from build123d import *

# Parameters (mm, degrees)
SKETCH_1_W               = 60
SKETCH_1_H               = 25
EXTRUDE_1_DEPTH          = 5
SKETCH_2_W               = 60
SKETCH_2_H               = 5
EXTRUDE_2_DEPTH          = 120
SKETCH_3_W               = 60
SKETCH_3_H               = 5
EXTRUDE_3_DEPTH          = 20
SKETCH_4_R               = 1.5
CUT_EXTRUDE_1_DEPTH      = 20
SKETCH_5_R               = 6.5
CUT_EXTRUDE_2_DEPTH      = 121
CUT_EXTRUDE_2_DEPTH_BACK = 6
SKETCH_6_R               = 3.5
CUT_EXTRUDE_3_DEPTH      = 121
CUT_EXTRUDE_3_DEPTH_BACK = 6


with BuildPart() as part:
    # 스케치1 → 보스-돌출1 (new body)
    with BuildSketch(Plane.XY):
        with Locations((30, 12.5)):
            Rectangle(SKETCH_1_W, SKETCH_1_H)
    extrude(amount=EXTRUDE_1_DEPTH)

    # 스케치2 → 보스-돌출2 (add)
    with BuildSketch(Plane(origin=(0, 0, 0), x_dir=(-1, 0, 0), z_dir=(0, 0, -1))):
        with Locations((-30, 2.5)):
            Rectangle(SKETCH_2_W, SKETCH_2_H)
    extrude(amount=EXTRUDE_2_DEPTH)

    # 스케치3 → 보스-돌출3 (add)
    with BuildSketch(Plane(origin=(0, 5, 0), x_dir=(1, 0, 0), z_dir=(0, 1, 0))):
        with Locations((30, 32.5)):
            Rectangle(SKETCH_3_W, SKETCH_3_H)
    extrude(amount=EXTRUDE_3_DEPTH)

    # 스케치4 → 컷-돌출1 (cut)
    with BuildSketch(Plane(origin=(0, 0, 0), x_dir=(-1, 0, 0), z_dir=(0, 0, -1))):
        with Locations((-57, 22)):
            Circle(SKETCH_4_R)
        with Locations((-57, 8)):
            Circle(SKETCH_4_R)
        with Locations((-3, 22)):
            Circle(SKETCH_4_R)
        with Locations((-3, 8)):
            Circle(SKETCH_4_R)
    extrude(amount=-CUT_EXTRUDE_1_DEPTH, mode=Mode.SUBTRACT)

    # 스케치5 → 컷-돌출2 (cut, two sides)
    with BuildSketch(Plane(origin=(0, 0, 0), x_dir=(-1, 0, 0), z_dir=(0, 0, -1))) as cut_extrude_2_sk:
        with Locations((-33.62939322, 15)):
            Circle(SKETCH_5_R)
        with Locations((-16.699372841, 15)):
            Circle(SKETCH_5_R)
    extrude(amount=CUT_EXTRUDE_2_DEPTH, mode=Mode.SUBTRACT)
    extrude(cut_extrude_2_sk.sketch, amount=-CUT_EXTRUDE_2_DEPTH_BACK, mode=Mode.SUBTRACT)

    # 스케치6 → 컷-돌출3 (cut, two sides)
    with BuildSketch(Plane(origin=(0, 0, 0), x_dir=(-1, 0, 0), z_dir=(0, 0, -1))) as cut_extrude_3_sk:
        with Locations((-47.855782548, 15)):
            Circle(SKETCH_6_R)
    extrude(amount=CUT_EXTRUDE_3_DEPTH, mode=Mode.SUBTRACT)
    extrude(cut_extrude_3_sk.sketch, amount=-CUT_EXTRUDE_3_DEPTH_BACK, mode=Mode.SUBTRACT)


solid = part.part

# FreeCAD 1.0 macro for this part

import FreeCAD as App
import Part
import Sketcher


def add_polygon(sketch, points):
    """Adds a closed chain of lines whose ends are joined by coincident constraints."""
    first, n = sketch.GeometryCount, len(points)
    for a, b in zip(points, points[1:] + points[:1]):
        sketch.addGeometry(Part.LineSegment(App.Vector(*a, 0), App.Vector(*b, 0)), False)
    for i in range(n):
        sketch.addConstraint(Sketcher.Constraint("Coincident", first + i, 2, first + (i + 1) % n, 1))

doc = App.newDocument("Part")
params = doc.addObject("Spreadsheet::Sheet", "Params")
for row, (alias, value) in enumerate([
    ("sketch1_width", "60 mm"),
    ("sketch1_height", "25 mm"),
    ("pad1_length", "5 mm"),
    ("sketch2_width", "60 mm"),
    ("sketch2_height", "5 mm"),
    ("pad2_length", "120 mm"),
    ("sketch3_width", "60 mm"),
    ("sketch3_height", "5 mm"),
    ("pad3_length", "20 mm"),
    ("sketch4_diameter", "3 mm"),
    ("pocket1_length", "20 mm"),
    ("sketch5_diameter", "13 mm"),
    ("sketch6_diameter", "7 mm"),
], start=1):
    params.set(f"A{row}", alias)
    params.set(f"B{row}", "=" + value)
    params.setAlias(f"B{row}", alias)

body = doc.addObject("PartDesign::Body", "Body")

# Sketch on XY plane
sketch1 = body.newObject("Sketcher::SketchObject", "Sketch")
sketch1.AttachmentSupport = (doc.getObject("XY_Plane"), [""])
sketch1.MapMode = "FlatFace"
add_polygon(sketch1, [(0, 25), (0, 0), (60, 0), (60, 25)])  # lines 0-3
sketch1.addConstraint(Sketcher.Constraint("Vertical", 0))
sketch1.addConstraint(Sketcher.Constraint("Horizontal", 1))
sketch1.addConstraint(Sketcher.Constraint("Vertical", 2))
sketch1.addConstraint(Sketcher.Constraint("Horizontal", 3))
sketch1.addConstraint(Sketcher.Constraint("Coincident", 0, 2, -1, 1))
sketch1.addConstraint(Sketcher.Constraint("DistanceX", 1, 1, 1, 2, 60.0))
sketch1.addConstraint(Sketcher.Constraint("DistanceY", 0, 2, 0, 1, 25.0))
sketch1.setExpression("Constraints[9]", "Params.sketch1_width")
sketch1.setExpression("Constraints[10]", "Params.sketch1_height")
pad1 = body.newObject("PartDesign::Pad", "Pad")
pad1.Profile = sketch1
pad1.setExpression("Length", "Params.pad1_length")

# Sketch on XY plane
sketch2 = body.newObject("Sketcher::SketchObject", "Sketch001")
sketch2.AttachmentSupport = (doc.getObject("XY_Plane"), [""])
sketch2.MapMode = "FlatFace"
add_polygon(sketch2, [(60, 5), (60, 0), (0, 0), (0, 5)])  # lines 0-3
sketch2.addConstraint(Sketcher.Constraint("Vertical", 0))
sketch2.addConstraint(Sketcher.Constraint("Horizontal", 1))
sketch2.addConstraint(Sketcher.Constraint("Vertical", 2))
sketch2.addConstraint(Sketcher.Constraint("Horizontal", 3))
sketch2.addConstraint(Sketcher.Constraint("Coincident", 1, 2, -1, 1))
sketch2.addConstraint(Sketcher.Constraint("DistanceX", 1, 2, 1, 1, 60.0))
sketch2.addConstraint(Sketcher.Constraint("DistanceY", 0, 2, 0, 1, 5.0))
sketch2.setExpression("Constraints[9]", "Params.sketch2_width")
sketch2.setExpression("Constraints[10]", "Params.sketch2_height")
pad2 = body.newObject("PartDesign::Pad", "Pad001")
pad2.Profile = sketch2
pad2.setExpression("Length", "Params.pad2_length")
pad2.Reversed = True

# Sketch on XZ plane
sketch3 = body.newObject("Sketcher::SketchObject", "Sketch002")
sketch3.AttachmentSupport = (doc.getObject("XZ_Plane"), [""])
sketch3.MapMode = "FlatFace"
sketch3.AttachmentOffset = App.Placement(App.Vector(0, 0, -5), App.Rotation())
add_polygon(sketch3, [(0, -35), (0, -30), (60, -30), (60, -35)])  # lines 0-3
sketch3.addConstraint(Sketcher.Constraint("Vertical", 0))
sketch3.addConstraint(Sketcher.Constraint("Horizontal", 1))
sketch3.addConstraint(Sketcher.Constraint("Vertical", 2))
sketch3.addConstraint(Sketcher.Constraint("Horizontal", 3))
sketch3.addConstraint(Sketcher.Constraint("PointOnObject", 0, 2, -2))
sketch3.addConstraint(Sketcher.Constraint("DistanceX", 1, 1, 1, 2, 60.0))
sketch3.addConstraint(Sketcher.Constraint("DistanceY", 0, 1, 0, 2, 5.0))
sketch3.addConstraint(Sketcher.Constraint("DistanceY", 0, 2, -1, 1, 30.0))
sketch3.setExpression("Constraints[9]", "Params.sketch3_width")
sketch3.setExpression("Constraints[10]", "Params.sketch3_height")
pad3 = body.newObject("PartDesign::Pad", "Pad002")
pad3.Profile = sketch3
pad3.setExpression("Length", "Params.pad3_length")
pad3.Reversed = True

# Sketch on XY plane
sketch4 = body.newObject("Sketcher::SketchObject", "Sketch003")
sketch4.AttachmentSupport = (doc.getObject("XY_Plane"), [""])
sketch4.MapMode = "FlatFace"
sketch4.addGeometry(Part.Circle(App.Vector(57, 22, 0), App.Vector(0, 0, 1), 1.5), False)
sketch4.addGeometry(Part.Circle(App.Vector(57, 8, 0), App.Vector(0, 0, 1), 1.5), False)
sketch4.addGeometry(Part.Circle(App.Vector(3, 22, 0), App.Vector(0, 0, 1), 1.5), False)
sketch4.addGeometry(Part.Circle(App.Vector(3, 8, 0), App.Vector(0, 0, 1), 1.5), False)
sketch4.addConstraint(Sketcher.Constraint("Equal", 0, 1))
sketch4.addConstraint(Sketcher.Constraint("Equal", 1, 2))
sketch4.addConstraint(Sketcher.Constraint("Equal", 2, 3))
sketch4.addConstraint(Sketcher.Constraint("Horizontal", 0, 3, 2, 3))
sketch4.addConstraint(Sketcher.Constraint("Horizontal", 1, 3, 3, 3))
sketch4.addConstraint(Sketcher.Constraint("Vertical", 0, 3, 1, 3))
sketch4.addConstraint(Sketcher.Constraint("Vertical", 2, 3, 3, 3))
sketch4.addConstraint(Sketcher.Constraint("Diameter", 0, 3.0))
sketch4.addConstraint(Sketcher.Constraint("DistanceX", -1, 1, 0, 3, 57.0))
sketch4.addConstraint(Sketcher.Constraint("DistanceY", -1, 1, 0, 3, 22.0))
sketch4.addConstraint(Sketcher.Constraint("DistanceY", -1, 1, 1, 3, 8.0))
sketch4.addConstraint(Sketcher.Constraint("DistanceX", -1, 1, 2, 3, 3.0))
sketch4.setExpression("Constraints[7]", "Params.sketch4_diameter")
pocket1 = body.newObject("PartDesign::Pocket", "Pocket")
pocket1.Profile = sketch4
pocket1.setExpression("Length", "Params.pocket1_length")
pocket1.Reversed = True

# Sketch on XY plane
sketch5 = body.newObject("Sketcher::SketchObject", "Sketch004")
sketch5.AttachmentSupport = (doc.getObject("XY_Plane"), [""])
sketch5.MapMode = "FlatFace"
sketch5.addGeometry(Part.Circle(App.Vector(34, 15, 0), App.Vector(0, 0, 1), 6), False)
sketch5.addGeometry(Part.Circle(App.Vector(17, 15, 0), App.Vector(0, 0, 1), 6), False)
sketch5.addConstraint(Sketcher.Constraint("Equal", 0, 1))
sketch5.addConstraint(Sketcher.Constraint("Horizontal", 0, 3, 1, 3))
sketch5.addConstraint(Sketcher.Constraint("Diameter", 0, 13.0))
sketch5.addConstraint(Sketcher.Constraint("DistanceY", -1, 1, 0, 3, 15.0))
sketch5.addConstraint(Sketcher.Constraint("DistanceX", 1, 3, 0, 3, 16.93002))
sketch5.addConstraint(Sketcher.Constraint("DistanceX", -1, 1, 0, 3, 33.629393))
sketch5.setExpression("Constraints[2]", "Params.sketch5_diameter")
pocket2 = body.newObject("PartDesign::Pocket", "Pocket001")
pocket2.Profile = sketch5
pocket2.Type = "ThroughAll"
pocket2.Midplane = True

# Sketch on XY plane
sketch6 = body.newObject("Sketcher::SketchObject", "Sketch005")
sketch6.AttachmentSupport = (doc.getObject("XY_Plane"), [""])
sketch6.MapMode = "FlatFace"
sketch6.addGeometry(Part.Circle(App.Vector(47.9, 15, 0), App.Vector(0, 0, 1), 3.5), False)
sketch6.addConstraint(Sketcher.Constraint("Diameter", 0, 7.0))
sketch6.addConstraint(Sketcher.Constraint("DistanceY", -1, 1, 0, 3, 15.0))
sketch6.addConstraint(Sketcher.Constraint("DistanceX", -1, 1, 0, 3, 47.855783))
sketch6.setExpression("Constraints[0]", "Params.sketch6_diameter")
pocket3 = body.newObject("PartDesign::Pocket", "Pocket002")
pocket3.Profile = sketch6
pocket3.Type = "ThroughAll"
pocket3.Midplane = True

doc.recompute()
